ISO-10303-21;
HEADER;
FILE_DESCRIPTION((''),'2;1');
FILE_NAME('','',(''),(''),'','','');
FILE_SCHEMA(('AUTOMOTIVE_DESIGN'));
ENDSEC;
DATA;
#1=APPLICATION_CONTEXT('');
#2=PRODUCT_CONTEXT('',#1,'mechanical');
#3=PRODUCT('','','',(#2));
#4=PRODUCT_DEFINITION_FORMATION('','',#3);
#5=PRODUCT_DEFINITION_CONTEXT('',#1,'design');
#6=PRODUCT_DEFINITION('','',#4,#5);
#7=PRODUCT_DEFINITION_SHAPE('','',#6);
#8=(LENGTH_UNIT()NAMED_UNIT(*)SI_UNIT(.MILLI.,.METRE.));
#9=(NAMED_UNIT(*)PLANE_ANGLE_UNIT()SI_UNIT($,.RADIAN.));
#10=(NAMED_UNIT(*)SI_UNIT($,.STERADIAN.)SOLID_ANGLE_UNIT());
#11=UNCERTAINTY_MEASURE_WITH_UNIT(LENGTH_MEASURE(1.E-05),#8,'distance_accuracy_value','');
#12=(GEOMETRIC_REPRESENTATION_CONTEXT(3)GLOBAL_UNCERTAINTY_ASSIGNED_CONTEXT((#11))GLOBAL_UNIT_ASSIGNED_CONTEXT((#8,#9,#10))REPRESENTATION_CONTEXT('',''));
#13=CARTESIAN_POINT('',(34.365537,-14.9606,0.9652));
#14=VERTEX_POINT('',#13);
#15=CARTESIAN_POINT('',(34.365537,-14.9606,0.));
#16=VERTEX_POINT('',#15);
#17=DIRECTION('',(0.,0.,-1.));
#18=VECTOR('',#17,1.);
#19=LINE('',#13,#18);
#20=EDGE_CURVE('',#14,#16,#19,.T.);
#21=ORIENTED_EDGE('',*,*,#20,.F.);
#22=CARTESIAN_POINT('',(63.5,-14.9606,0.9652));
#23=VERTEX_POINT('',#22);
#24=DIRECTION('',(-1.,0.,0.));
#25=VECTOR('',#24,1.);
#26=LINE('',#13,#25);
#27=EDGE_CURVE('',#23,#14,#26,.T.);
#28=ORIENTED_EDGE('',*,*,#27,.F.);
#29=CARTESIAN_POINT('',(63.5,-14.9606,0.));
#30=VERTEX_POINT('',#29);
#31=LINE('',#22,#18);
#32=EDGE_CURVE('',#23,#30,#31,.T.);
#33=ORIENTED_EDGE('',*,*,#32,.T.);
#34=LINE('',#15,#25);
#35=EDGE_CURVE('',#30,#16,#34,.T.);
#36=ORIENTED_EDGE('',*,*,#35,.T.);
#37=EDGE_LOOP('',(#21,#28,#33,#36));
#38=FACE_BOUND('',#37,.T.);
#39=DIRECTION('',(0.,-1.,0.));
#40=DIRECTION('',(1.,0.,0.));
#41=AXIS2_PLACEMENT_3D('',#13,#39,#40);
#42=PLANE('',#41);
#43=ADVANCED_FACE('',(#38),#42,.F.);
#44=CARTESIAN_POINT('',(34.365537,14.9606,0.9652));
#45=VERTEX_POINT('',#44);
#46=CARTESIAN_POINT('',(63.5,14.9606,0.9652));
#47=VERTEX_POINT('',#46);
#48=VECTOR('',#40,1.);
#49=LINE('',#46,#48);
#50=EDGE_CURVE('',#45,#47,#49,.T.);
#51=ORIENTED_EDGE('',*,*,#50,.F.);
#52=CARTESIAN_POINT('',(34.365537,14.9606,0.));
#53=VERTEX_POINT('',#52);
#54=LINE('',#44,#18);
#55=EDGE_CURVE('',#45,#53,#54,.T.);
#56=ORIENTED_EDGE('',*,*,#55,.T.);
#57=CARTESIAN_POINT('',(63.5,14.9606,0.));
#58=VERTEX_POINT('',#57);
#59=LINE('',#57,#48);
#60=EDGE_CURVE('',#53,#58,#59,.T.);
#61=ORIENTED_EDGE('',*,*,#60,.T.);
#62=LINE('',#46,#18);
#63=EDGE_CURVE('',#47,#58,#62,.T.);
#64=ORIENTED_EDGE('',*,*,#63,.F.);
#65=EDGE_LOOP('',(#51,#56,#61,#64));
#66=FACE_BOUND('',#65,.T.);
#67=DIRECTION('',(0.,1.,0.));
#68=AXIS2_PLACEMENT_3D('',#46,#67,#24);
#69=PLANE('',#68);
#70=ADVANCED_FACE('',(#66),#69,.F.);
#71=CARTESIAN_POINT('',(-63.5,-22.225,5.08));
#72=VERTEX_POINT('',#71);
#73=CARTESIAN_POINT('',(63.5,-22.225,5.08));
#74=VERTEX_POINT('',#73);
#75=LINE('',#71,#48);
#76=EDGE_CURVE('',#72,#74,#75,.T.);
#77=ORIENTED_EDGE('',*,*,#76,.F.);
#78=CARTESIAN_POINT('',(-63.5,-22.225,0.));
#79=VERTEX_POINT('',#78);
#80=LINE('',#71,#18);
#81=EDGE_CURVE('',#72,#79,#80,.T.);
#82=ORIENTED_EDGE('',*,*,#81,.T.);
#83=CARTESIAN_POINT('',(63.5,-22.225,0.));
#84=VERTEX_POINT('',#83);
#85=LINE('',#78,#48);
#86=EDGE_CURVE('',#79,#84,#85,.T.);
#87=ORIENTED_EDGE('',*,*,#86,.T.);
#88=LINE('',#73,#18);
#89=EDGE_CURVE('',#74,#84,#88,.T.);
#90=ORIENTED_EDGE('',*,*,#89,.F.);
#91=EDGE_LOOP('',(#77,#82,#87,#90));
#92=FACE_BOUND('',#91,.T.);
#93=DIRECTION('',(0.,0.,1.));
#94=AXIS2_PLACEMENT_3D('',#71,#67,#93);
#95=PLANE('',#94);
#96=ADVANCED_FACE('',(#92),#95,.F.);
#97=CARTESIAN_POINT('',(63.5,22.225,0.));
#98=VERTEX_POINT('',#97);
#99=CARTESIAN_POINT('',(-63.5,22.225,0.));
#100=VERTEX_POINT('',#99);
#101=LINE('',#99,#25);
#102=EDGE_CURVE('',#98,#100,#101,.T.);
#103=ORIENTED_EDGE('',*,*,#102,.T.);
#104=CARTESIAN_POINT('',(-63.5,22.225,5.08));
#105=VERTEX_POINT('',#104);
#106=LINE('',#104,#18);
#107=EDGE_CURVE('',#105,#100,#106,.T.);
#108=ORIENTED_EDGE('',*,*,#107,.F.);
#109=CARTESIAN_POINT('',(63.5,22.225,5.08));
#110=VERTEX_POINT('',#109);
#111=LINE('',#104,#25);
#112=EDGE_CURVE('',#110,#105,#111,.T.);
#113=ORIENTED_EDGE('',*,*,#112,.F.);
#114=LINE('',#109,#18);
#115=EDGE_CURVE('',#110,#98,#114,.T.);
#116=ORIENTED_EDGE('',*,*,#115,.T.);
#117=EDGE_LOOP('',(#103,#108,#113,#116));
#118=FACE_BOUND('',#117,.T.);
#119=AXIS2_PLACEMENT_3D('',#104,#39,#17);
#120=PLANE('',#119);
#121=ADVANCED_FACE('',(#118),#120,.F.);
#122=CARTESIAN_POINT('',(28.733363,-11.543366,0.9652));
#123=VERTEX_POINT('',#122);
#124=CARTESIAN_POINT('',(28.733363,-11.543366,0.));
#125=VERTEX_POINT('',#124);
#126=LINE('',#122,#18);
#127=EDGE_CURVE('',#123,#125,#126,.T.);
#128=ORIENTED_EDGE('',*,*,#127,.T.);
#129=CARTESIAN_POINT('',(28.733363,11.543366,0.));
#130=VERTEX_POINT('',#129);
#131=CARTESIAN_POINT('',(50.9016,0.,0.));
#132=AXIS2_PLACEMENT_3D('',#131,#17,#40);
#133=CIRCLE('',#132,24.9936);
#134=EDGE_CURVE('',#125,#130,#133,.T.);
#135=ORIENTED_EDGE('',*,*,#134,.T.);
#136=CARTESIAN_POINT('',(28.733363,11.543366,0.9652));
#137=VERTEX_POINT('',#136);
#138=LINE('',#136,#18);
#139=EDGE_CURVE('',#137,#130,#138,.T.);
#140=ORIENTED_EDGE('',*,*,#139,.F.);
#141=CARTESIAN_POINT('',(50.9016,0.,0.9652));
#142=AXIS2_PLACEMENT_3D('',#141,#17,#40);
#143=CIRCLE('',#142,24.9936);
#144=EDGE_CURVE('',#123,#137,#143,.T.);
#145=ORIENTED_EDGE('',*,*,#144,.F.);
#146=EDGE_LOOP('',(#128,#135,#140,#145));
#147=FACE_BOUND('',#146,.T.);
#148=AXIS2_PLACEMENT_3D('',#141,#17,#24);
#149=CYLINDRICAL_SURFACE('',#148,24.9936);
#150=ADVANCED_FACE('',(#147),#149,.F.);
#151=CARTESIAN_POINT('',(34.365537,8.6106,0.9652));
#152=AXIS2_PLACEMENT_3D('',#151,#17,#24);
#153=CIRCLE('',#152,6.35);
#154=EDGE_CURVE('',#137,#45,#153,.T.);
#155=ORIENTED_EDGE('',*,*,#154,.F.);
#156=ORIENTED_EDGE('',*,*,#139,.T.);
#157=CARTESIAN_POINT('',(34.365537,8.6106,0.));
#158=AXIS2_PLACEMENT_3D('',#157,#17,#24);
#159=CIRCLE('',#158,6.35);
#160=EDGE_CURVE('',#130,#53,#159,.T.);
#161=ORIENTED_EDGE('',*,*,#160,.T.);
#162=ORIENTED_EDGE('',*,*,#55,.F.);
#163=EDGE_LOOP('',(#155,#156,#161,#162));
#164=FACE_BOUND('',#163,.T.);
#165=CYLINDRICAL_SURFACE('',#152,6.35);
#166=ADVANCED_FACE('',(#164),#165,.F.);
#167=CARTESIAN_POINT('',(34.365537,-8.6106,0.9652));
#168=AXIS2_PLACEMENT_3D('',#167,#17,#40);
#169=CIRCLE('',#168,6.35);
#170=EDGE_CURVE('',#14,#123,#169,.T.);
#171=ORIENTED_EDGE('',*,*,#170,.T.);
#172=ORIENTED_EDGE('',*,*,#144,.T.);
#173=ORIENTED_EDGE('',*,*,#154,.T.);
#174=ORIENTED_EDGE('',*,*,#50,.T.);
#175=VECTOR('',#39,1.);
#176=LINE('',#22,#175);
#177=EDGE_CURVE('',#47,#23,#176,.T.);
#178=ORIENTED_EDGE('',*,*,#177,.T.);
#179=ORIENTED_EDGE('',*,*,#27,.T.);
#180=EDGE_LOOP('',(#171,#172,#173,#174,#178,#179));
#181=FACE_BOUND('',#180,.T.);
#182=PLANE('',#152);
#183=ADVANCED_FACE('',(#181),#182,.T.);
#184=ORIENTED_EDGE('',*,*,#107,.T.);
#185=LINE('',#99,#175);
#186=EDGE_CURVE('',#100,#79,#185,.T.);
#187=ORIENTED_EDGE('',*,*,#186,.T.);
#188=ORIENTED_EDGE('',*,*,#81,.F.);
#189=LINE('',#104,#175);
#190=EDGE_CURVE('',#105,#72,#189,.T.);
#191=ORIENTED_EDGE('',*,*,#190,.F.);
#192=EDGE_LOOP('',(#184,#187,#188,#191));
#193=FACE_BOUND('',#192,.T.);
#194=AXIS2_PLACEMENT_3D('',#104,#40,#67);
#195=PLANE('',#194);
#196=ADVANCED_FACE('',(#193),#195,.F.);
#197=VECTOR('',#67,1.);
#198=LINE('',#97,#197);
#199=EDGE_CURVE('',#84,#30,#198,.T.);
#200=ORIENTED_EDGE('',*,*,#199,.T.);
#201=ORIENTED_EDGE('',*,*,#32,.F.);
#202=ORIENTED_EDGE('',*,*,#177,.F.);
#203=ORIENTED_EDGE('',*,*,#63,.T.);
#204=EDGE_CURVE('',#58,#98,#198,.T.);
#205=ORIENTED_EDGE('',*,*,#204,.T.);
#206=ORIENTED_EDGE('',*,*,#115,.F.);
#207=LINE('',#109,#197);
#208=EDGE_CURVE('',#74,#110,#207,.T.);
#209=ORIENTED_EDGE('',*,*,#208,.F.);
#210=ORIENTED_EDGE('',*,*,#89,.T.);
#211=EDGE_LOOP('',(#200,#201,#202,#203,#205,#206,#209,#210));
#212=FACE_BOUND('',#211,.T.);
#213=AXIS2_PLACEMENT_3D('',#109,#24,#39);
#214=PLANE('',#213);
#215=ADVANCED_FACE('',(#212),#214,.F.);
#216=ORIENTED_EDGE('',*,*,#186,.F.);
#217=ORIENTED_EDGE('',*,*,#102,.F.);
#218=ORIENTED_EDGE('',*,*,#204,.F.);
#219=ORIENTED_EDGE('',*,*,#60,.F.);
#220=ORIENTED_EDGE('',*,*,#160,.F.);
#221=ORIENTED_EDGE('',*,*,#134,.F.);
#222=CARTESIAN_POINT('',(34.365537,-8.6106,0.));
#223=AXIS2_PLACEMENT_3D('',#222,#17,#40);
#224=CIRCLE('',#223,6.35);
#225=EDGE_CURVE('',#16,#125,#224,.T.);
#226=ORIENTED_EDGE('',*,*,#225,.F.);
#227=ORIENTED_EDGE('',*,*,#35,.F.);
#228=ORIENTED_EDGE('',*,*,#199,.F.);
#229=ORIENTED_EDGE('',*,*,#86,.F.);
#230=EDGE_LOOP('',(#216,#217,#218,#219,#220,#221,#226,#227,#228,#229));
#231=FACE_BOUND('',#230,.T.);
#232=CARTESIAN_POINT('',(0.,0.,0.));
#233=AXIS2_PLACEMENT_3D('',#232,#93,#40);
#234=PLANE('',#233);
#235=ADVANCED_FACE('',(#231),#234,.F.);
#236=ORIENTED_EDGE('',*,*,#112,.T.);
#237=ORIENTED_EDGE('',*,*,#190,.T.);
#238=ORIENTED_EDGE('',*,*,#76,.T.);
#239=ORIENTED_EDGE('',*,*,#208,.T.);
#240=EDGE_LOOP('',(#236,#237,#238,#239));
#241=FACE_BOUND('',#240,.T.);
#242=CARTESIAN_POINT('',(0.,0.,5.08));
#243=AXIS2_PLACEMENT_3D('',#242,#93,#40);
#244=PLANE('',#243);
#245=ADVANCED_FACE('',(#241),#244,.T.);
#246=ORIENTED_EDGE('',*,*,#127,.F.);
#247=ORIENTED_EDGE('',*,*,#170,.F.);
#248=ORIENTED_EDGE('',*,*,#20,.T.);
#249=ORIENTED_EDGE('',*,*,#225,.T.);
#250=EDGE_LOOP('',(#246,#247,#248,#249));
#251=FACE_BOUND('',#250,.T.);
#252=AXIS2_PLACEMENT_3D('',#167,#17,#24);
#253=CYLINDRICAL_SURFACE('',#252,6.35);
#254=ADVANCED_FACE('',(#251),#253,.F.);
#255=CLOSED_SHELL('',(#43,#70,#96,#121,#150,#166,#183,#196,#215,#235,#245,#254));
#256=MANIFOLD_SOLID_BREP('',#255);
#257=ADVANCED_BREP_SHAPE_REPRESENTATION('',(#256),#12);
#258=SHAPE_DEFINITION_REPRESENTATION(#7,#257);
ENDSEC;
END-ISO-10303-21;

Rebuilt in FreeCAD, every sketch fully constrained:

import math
import FreeCAD as App
import Part
import Sketcher
from FreeCAD import Vector
Q = App.Units.Quantity

doc = App.newDocument("Part")
params = doc.addObject("Spreadsheet::Sheet", "Params")
for row, (alias, value) in enumerate([
    ("sketch1_width", "5 in"),
    ("sketch1_height", "1.75 in"),
    ("pad1_length", "0.2 in"),
    ("sketch2_radius", "0.25 in"),
    ("sketch2_radius2", "0.984 in"),
    ("sketch2_height", "1.178 in"),
    ("pocket1_length", "0.038 in"),
], start=1):
    params.set(f"A{row}", alias)
    params.set(f"B{row}", "=" + value)
    params.setAlias(f"B{row}", alias)

body = doc.addObject("PartDesign::Body", "Body")

sketch1 = body.newObject("Sketcher::SketchObject", "Sketch")
sketch1.AttachmentSupport = (doc.getObject("XY_Plane"), [""])
sketch1.MapMode = "FlatFace"
sketch1.addGeometry(Part.LineSegment(Vector(-63.5, 22.225, 0), Vector(-63.5, -22.225, 0)), False)
sketch1.addGeometry(Part.LineSegment(Vector(-63.5, -22.225, 0), Vector(63.5, -22.225, 0)), False)
sketch1.addGeometry(Part.LineSegment(Vector(63.5, -22.225, 0), Vector(63.5, 22.225, 0)), False)
sketch1.addGeometry(Part.LineSegment(Vector(63.5, 22.225, 0), Vector(-63.5, 22.225, 0)), False)
sketch1.addConstraint(Sketcher.Constraint("Coincident", 0, 2, 1, 1))
sketch1.addConstraint(Sketcher.Constraint("Coincident", 1, 2, 2, 1))
sketch1.addConstraint(Sketcher.Constraint("Coincident", 2, 2, 3, 1))
sketch1.addConstraint(Sketcher.Constraint("Coincident", 3, 2, 0, 1))
sketch1.addConstraint(Sketcher.Constraint("Vertical", 0))
sketch1.addConstraint(Sketcher.Constraint("Horizontal", 1))
sketch1.addConstraint(Sketcher.Constraint("Vertical", 2))
sketch1.addConstraint(Sketcher.Constraint("Horizontal", 3))
sketch1.addConstraint(Sketcher.Constraint("Symmetric", 0, 2, 2, 2, -1, 1))
sketch1.addConstraint(Sketcher.Constraint("DistanceX", 1, 1, 1, 2, Q("5 in")))
sketch1.addConstraint(Sketcher.Constraint("DistanceY", 0, 2, 0, 1, Q("1.75 in")))
sketch1.setExpression("Constraints[9]", "Params.sketch1_width")
sketch1.setExpression("Constraints[10]", "Params.sketch1_height")
pad1 = body.newObject("PartDesign::Pad", "Pad")
pad1.Profile = sketch1
pad1.setExpression("Length", "Params.pad1_length")

sketch2 = body.newObject("Sketcher::SketchObject", "Sketch001")
sketch2.AttachmentSupport = (doc.getObject("XY_Plane"), [""])
sketch2.MapMode = "FlatFace"
sketch2.addGeometry(Part.LineSegment(Vector(34.365537, 14.9606, 0), Vector(63.5, 14.9606, 0)), False)
sketch2.addGeometry(Part.LineSegment(Vector(63.5, 14.9606, 0), Vector(63.5, -14.9606, 0)), False)
sketch2.addGeometry(Part.LineSegment(Vector(63.5, -14.9606, 0), Vector(34.365537, -14.9606, 0)), False)
sketch2.addGeometry(Part.ArcOfCircle(Part.Circle(Vector(34.365537, -8.6106, 0), Vector(0, 0, 1), 6.35), math.radians(-152.493266), math.radians(-90)), False)
sketch2.addGeometry(Part.ArcOfCircle(Part.Circle(Vector(50.9016, 0, 0), Vector(0, 0, 1), 24.9936), math.radians(152.493266), math.radians(207.506734)), False)
sketch2.addGeometry(Part.ArcOfCircle(Part.Circle(Vector(34.365537, 8.6106, 0), Vector(0, 0, 1), 6.35), math.radians(90), math.radians(152.493266)), False)
sketch2.addConstraint(Sketcher.Constraint("Coincident", 0, 2, 1, 1))
sketch2.addConstraint(Sketcher.Constraint("Coincident", 1, 2, 2, 1))
sketch2.addConstraint(Sketcher.Constraint("Tangent", 2, 2, 3, 2))
sketch2.addConstraint(Sketcher.Constraint("Tangent", 3, 1, 4, 2))
sketch2.addConstraint(Sketcher.Constraint("Tangent", 4, 1, 5, 2))
sketch2.addConstraint(Sketcher.Constraint("Tangent", 5, 1, 0, 1))
sketch2.addConstraint(Sketcher.Constraint("Horizontal", 0))
sketch2.addConstraint(Sketcher.Constraint("Vertical", 1))
sketch2.addConstraint(Sketcher.Constraint("Horizontal", 2))
sketch2.addConstraint(Sketcher.Constraint("Equal", 3, 5))
sketch2.addConstraint(Sketcher.Constraint("Symmetric", 3, 3, 5, 3, -1))
sketch2.addConstraint(Sketcher.Constraint("Radius", 3, Q("0.25 in")))
sketch2.addConstraint(Sketcher.Constraint("Radius", 4, Q("0.984 in")))
sketch2.addConstraint(Sketcher.Constraint("DistanceX", -1, 1, 0, 2, Q("2.5 in")))
sketch2.addConstraint(Sketcher.Constraint("DistanceY", 1, 2, 1, 1, Q("1.178 in")))
sketch2.addConstraint(Sketcher.Constraint("DistanceX", -1, 1, 4, 3, Q("2.004 in")))
sketch2.setExpression("Constraints[11]", "Params.sketch2_radius")
sketch2.setExpression("Constraints[12]", "Params.sketch2_radius2")
sketch2.setExpression("Constraints[14]", "Params.sketch2_height")
pocket1 = body.newObject("PartDesign::Pocket", "Pocket")
pocket1.Profile = sketch2
pocket1.setExpression("Length", "Params.pocket1_length")
pocket1.Reversed = True

doc.recompute()
